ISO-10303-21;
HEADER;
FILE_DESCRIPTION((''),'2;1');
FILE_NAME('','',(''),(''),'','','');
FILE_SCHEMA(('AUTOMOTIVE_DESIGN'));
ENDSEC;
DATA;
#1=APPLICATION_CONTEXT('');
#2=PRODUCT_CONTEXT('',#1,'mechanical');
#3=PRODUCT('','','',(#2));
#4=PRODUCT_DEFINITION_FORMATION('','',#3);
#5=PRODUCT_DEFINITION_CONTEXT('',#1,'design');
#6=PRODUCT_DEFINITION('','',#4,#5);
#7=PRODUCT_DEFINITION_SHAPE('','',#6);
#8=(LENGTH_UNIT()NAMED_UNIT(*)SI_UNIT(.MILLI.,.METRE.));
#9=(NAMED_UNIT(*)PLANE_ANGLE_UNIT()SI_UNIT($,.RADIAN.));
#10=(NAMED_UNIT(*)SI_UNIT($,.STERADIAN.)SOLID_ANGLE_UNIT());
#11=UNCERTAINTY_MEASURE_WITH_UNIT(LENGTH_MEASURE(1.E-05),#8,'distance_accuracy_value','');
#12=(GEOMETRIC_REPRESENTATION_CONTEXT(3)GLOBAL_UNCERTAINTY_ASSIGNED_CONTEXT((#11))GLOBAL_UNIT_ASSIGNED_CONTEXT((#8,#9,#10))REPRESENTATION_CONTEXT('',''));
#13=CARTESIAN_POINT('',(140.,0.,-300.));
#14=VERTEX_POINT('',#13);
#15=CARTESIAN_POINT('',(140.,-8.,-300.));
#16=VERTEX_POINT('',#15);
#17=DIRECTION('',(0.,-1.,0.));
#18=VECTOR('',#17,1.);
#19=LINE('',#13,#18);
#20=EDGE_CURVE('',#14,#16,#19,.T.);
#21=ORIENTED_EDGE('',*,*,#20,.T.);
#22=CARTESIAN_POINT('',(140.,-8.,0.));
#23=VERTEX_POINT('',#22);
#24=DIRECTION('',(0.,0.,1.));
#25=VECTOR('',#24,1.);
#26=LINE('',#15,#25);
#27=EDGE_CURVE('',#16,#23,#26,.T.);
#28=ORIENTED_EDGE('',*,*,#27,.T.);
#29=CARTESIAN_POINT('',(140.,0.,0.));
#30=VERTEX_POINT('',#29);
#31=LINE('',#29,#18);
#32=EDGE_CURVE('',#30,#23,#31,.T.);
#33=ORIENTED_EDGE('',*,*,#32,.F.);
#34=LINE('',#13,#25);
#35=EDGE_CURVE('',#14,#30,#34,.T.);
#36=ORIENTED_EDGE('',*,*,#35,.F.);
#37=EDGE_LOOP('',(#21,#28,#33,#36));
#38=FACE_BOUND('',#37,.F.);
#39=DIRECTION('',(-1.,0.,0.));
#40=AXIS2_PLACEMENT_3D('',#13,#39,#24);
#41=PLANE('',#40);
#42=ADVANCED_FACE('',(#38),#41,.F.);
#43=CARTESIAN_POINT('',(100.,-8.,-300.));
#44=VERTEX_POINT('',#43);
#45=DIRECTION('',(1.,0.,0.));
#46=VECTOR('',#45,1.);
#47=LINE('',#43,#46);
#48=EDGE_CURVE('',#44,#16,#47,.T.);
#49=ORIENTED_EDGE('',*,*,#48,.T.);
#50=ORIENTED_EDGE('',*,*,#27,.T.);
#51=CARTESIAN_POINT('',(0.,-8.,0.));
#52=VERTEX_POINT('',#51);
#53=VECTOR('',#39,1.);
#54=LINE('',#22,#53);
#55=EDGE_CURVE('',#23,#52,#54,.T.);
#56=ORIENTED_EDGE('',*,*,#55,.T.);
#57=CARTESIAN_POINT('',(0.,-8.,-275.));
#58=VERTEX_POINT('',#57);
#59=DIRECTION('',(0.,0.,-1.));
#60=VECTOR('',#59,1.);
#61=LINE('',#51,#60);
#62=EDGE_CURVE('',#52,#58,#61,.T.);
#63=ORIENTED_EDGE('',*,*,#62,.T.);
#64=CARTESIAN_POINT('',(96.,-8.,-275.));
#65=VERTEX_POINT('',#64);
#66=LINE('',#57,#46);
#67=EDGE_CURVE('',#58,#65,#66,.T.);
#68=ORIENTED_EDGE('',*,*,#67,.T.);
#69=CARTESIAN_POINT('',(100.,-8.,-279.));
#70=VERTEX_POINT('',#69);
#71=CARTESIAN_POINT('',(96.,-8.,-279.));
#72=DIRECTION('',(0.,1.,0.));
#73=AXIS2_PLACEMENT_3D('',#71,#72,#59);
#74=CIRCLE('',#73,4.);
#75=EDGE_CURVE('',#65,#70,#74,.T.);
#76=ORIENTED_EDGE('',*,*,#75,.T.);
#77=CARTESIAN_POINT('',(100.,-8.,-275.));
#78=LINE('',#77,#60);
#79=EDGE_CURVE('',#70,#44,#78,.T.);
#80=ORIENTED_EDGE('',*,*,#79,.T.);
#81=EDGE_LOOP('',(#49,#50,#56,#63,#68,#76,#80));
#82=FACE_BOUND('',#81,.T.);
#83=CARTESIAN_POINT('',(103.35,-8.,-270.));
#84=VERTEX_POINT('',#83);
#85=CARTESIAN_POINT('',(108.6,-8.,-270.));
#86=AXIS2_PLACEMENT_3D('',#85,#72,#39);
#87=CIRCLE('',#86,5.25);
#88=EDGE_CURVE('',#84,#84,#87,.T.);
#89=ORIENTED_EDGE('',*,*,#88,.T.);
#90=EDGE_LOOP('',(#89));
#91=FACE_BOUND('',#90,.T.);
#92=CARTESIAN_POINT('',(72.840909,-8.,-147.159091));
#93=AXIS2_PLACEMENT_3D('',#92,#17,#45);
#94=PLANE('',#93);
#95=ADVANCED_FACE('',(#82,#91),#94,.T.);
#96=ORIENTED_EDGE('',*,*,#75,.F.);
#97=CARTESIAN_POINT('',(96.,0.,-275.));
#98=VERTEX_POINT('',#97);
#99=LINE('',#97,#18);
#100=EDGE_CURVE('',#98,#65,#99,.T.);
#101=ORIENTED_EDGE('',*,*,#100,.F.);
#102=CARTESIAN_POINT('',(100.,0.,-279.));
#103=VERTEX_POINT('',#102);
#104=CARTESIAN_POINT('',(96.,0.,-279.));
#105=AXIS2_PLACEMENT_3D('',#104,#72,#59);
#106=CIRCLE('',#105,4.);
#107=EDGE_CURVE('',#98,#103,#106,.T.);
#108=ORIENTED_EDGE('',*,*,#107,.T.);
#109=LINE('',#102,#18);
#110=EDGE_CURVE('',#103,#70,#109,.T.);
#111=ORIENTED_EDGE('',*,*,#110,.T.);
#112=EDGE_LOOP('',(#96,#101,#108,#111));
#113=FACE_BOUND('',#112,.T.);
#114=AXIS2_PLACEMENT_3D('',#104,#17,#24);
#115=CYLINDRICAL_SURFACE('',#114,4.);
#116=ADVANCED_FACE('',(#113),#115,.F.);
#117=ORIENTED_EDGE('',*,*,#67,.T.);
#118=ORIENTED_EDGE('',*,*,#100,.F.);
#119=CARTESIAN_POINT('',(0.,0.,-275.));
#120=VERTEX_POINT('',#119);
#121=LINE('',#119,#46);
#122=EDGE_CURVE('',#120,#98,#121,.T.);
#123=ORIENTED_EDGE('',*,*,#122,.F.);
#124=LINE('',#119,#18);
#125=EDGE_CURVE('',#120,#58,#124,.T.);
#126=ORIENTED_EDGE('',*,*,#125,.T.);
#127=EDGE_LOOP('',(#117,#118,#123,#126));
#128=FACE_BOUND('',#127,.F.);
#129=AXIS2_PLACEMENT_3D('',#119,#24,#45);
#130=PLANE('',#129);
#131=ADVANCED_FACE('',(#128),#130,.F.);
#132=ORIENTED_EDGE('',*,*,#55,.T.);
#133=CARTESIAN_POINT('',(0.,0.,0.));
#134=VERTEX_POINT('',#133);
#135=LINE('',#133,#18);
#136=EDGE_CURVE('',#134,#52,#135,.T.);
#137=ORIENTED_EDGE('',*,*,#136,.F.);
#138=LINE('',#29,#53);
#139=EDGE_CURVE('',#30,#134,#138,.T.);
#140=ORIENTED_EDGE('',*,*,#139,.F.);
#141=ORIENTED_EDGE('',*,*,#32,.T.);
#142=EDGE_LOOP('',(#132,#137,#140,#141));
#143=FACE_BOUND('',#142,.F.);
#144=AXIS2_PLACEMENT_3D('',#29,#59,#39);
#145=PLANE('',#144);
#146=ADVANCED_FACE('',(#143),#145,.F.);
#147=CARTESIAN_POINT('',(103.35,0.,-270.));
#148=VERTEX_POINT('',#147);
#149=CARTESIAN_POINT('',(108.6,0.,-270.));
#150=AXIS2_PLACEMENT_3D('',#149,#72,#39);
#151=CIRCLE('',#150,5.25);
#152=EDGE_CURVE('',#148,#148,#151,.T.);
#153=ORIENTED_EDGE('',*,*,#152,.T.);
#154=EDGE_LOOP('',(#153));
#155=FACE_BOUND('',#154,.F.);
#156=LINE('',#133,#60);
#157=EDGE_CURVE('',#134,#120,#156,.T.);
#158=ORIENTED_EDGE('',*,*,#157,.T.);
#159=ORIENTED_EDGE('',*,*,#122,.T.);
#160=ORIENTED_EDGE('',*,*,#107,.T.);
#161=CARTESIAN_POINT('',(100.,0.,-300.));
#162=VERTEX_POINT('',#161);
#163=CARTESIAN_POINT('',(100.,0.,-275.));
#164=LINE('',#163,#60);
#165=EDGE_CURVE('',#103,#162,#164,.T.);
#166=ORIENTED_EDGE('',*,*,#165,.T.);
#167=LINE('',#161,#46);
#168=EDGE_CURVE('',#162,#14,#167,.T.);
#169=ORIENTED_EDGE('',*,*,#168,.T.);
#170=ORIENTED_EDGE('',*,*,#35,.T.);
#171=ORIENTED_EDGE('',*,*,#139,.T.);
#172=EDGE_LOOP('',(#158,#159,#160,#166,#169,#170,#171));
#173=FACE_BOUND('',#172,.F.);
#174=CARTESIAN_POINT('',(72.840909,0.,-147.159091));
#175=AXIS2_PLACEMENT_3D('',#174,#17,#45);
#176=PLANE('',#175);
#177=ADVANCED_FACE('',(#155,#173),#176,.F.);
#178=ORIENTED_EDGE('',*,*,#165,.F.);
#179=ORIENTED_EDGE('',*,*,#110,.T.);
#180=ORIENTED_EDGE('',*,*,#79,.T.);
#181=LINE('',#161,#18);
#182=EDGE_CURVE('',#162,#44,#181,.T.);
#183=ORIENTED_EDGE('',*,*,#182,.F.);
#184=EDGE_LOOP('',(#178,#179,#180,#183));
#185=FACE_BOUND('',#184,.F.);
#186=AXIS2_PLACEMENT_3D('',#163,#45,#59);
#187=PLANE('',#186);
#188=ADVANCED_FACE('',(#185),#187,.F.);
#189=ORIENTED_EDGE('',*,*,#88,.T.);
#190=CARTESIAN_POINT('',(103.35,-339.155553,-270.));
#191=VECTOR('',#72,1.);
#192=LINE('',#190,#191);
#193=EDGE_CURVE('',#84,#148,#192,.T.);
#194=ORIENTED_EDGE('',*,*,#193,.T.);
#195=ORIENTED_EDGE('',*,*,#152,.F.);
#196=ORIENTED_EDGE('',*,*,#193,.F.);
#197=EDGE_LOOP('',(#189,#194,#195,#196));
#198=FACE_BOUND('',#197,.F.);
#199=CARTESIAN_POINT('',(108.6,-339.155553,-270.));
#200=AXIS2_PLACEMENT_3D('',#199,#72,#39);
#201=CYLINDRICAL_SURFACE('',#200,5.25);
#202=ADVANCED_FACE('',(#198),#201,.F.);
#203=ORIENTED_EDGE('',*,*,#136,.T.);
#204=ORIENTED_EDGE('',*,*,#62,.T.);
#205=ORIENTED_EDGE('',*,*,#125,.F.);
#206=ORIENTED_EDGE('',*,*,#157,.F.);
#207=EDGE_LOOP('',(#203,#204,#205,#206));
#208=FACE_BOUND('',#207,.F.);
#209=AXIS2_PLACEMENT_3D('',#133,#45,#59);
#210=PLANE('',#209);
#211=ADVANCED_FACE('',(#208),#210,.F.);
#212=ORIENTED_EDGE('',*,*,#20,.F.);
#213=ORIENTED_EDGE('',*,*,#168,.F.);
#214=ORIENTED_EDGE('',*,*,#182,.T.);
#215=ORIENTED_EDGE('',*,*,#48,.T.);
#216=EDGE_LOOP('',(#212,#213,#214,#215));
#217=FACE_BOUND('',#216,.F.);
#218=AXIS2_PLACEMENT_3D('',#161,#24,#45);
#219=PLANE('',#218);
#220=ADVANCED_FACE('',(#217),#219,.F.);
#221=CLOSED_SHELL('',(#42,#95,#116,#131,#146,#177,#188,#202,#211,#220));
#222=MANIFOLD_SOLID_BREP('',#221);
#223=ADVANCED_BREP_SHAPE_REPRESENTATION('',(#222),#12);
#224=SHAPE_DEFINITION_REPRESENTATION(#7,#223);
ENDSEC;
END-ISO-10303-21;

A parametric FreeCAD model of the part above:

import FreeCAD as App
import Part
import Sketcher
Q = App.Units.Quantity


def edges_at(feature, points):
    """Names of the edges that pass closest to the given points."""
    edges = feature.Shape.Edges
    near = lambda p: min(range(len(edges)), key=lambda i: edges[i].distToShape(Part.Vertex(*p))[0])
    return sorted({f"Edge{near(p) + 1}" for p in points})


def add_polygon(sketch, points):
    """Adds a closed chain of lines whose ends are joined by coincident constraints."""
    first, n = sketch.GeometryCount, len(points)
    for a, b in zip(points, points[1:] + points[:1]):
        sketch.addGeometry(Part.LineSegment(App.Vector(*a, 0), App.Vector(*b, 0)), False)
    for i in range(n):
        sketch.addConstraint(Sketcher.Constraint("Coincident", first + i, 2, first + (i + 1) % n, 1))

doc = App.newDocument("Part")
body = doc.addObject("PartDesign::Body", "Body")

# Sketch on XZ plane
sketch1 = body.newObject("Sketcher::SketchObject", "Sketch")
sketch1.AttachmentSupport = (doc.getObject("XZ_Plane"), [""])
sketch1.MapMode = "FlatFace"
add_polygon(sketch1, [(140, 0), (0, 0), (0, -275), (100, -275), (100, -300), (140, -300)])  # lines 0-5
sketch1.addConstraint([
    Sketcher.Constraint("Horizontal", 0),
    Sketcher.Constraint("Vertical", 1),
    Sketcher.Constraint("Horizontal", 2),
    Sketcher.Constraint("Vertical", 3),
    Sketcher.Constraint("Horizontal", 4),
    Sketcher.Constraint("Vertical", 5),
    Sketcher.Constraint("Coincident", 0, 2, -1, 1),
    Sketcher.Constraint("DistanceX", 0, 2, 0, 1, Q("140 mm")),
    Sketcher.Constraint("DistanceX", 2, 1, 2, 2, Q("100 mm")),
    Sketcher.Constraint("DistanceY", 1, 2, 1, 1, Q("275 mm")),
    Sketcher.Constraint("DistanceY", 3, 2, 3, 1, Q("25 mm")),
])
pad1 = body.newObject("PartDesign::Pad", "Pad")
pad1.Profile = sketch1
pad1.Length = 8
doc.recompute()

fillet = body.newObject("PartDesign::Fillet", "Fillet")
fillet.Base = (pad1, edges_at(pad1, [(100, -4, -275)]))
fillet.Radius = 4

# Sketch on XZ plane
sketch2 = body.newObject("Sketcher::SketchObject", "Sketch001")
sketch2.AttachmentSupport = (doc.getObject("XZ_Plane"), [""])
sketch2.MapMode = "FlatFace"
sketch2.AttachmentOffset = App.Placement(App.Vector(0, 0, 8), App.Rotation())
sketch2.addGeometry(Part.Circle(App.Vector(109, -270, 0), App.Vector(0, 0, 1), 5), False)
sketch2.addConstraint([
    Sketcher.Constraint("Diameter", 0, Q("10.5 mm")),
    Sketcher.Constraint("DistanceY", 0, 3, -1, 1, Q("270 mm")),
    Sketcher.Constraint("DistanceX", -1, 1, 0, 3, Q("108.6 mm")),
])
doc.recompute()
hole = body.newObject("PartDesign::Hole", "Hole")
hole.Profile = sketch2
hole.ThreadType = "None"
hole.Diameter = 10.5
hole.DepthType = "ThroughAll"

doc.recompute()
